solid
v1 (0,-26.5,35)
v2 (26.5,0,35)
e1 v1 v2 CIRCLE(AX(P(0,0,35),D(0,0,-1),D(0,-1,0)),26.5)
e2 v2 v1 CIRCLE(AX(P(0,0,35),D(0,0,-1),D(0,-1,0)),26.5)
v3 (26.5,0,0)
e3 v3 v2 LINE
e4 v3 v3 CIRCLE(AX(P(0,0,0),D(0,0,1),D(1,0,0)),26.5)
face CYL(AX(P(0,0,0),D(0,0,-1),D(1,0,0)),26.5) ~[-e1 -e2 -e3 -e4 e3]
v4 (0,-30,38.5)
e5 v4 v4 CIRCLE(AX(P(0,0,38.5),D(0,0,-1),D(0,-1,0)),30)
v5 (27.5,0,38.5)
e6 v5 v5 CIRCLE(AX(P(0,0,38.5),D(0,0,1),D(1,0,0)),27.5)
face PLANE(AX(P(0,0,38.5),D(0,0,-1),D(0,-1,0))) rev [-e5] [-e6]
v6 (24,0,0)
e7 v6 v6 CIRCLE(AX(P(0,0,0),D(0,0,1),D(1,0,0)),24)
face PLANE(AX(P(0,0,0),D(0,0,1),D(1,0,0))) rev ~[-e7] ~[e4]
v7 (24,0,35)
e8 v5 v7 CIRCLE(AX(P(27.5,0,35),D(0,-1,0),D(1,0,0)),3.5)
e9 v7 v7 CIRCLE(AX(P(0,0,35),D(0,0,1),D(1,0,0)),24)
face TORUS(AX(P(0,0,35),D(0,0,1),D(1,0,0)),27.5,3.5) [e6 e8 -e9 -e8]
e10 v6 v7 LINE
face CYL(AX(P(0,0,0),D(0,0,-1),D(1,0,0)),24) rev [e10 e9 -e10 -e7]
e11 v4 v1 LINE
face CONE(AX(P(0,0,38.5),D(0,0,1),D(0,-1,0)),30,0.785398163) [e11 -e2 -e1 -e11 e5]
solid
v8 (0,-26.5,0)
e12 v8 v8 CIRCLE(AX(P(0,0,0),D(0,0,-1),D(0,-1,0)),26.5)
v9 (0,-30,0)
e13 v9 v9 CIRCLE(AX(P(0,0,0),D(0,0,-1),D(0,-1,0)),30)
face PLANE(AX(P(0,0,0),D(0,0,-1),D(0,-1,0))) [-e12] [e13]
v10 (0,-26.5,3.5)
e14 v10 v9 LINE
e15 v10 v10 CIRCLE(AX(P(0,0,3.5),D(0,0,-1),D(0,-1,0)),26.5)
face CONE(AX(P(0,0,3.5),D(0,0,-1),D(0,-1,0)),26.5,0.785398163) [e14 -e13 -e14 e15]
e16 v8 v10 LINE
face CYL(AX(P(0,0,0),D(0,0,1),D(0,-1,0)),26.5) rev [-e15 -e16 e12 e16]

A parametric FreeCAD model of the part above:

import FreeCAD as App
import Part
import Sketcher

V = App.Vector
Q = App.Units.Quantity


def edges_at(feature, points):
    """Names of the edges that pass closest to the given points."""
    edges = feature.Shape.Edges
    near = lambda p: min(range(len(edges)), key=lambda i: edges[i].distToShape(Part.Vertex(*p))[0])
    return sorted({f"Edge{near(p) + 1}" for p in points})


def add_polygon(sketch, points):
    """Adds a closed chain of lines whose ends are joined by coincident constraints."""
    first, n = sketch.GeometryCount, len(points)
    for a, b in zip(points, points[1:] + points[:1]):
        sketch.addGeometry(Part.LineSegment(App.Vector(*a, 0), App.Vector(*b, 0)), False)
    for i in range(n):
        sketch.addConstraint(Sketcher.Constraint("Coincident", first + i, 2, first + (i + 1) % n, 1))

doc = App.newDocument("Part")
body = doc.addObject("PartDesign::Body", "Body")

# Sketch on XY plane
sketch1 = body.newObject("Sketcher::SketchObject", "Sketch")
sketch1.AttachmentSupport = (doc.getObject("XY_Plane"), [""])
sketch1.MapMode = "FlatFace"
sketch1.addGeometry(Part.Circle(V(0, 0, 0), V(0, 0, 1), 26), False)
sketch1.addGeometry(Part.Circle(V(0, 0, 0), V(0, 0, 1), 24), False)
sketch1.addConstraint(Sketcher.Constraint("Coincident", 0, 3, -1, 1))
sketch1.addConstraint(Sketcher.Constraint("Coincident", 1, 3, -1, 1))
sketch1.addConstraint(Sketcher.Constraint("Diameter", 0, Q("53 mm")))
sketch1.addConstraint(Sketcher.Constraint("Diameter", 1, Q("48 mm")))
pad1 = body.newObject("PartDesign::Pad", "Pad")
pad1.Profile = sketch1
pad1.Length = 38.5

# Sketch on YZ plane
sketch2 = body.newObject("Sketcher::SketchObject", "Sketch001")
sketch2.AttachmentSupport = (doc.getObject("YZ_Plane"), [""])
sketch2.MapMode = "FlatFace"
add_polygon(sketch2, [(-30, 38.5), (-26.5, 35), (-26.5, 38.5)])  # lines 0-2
sketch2.addConstraint(Sketcher.Constraint("Vertical", 1))
sketch2.addConstraint(Sketcher.Constraint("Horizontal", 2))
sketch2.addConstraint(Sketcher.Constraint("Equal", 2, 1))
sketch2.addConstraint(Sketcher.Constraint("DistanceX", 2, 2, 2, 1, Q("3.5 mm")))
sketch2.addConstraint(Sketcher.Constraint("DistanceY", -1, 1, 0, 2, Q("35 mm")))
sketch2.addConstraint(Sketcher.Constraint("DistanceX", 2, 2, -1, 1, Q("30 mm")))
revolution = body.newObject("PartDesign::Revolution", "Revolution")
revolution.Profile = sketch2
revolution.ReferenceAxis = (sketch2, ["V_Axis"])
revolution.Angle = 360
doc.recompute()

fillet = body.newObject("PartDesign::Fillet", "Fillet")
fillet.Base = (revolution, edges_at(revolution, [(-24, 0, 38.5)]))
fillet.Radius = 3.5
body2 = doc.addObject("PartDesign::Body", "Body001")

# Sketch on YZ plane
sketch3 = body2.newObject("Sketcher::SketchObject", "Sketch002")
sketch3.AttachmentSupport = (doc.getObject("YZ_Plane001"), [""])
sketch3.MapMode = "FlatFace"
add_polygon(sketch3, [(-30, 0), (-26.5, 0), (-26.5, 3.5)])  # lines 0-2
sketch3.addConstraint(Sketcher.Constraint("Horizontal", 0))
sketch3.addConstraint(Sketcher.Constraint("Vertical", 1))
sketch3.addConstraint(Sketcher.Constraint("PointOnObject", 0, 2, -1))
sketch3.addConstraint(Sketcher.Constraint("Equal", 0, 1))
sketch3.addConstraint(Sketcher.Constraint("DistanceX", 0, 1, 0, 2, Q("3.5 mm")))
sketch3.addConstraint(Sketcher.Constraint("DistanceX", 2, 2, -1, 1, Q("30 mm")))
revolution2 = body2.newObject("PartDesign::Revolution", "Revolution001")
revolution2.Profile = sketch3
revolution2.ReferenceAxis = (sketch3, ["V_Axis"])
revolution2.Angle = 360

doc.recompute()
